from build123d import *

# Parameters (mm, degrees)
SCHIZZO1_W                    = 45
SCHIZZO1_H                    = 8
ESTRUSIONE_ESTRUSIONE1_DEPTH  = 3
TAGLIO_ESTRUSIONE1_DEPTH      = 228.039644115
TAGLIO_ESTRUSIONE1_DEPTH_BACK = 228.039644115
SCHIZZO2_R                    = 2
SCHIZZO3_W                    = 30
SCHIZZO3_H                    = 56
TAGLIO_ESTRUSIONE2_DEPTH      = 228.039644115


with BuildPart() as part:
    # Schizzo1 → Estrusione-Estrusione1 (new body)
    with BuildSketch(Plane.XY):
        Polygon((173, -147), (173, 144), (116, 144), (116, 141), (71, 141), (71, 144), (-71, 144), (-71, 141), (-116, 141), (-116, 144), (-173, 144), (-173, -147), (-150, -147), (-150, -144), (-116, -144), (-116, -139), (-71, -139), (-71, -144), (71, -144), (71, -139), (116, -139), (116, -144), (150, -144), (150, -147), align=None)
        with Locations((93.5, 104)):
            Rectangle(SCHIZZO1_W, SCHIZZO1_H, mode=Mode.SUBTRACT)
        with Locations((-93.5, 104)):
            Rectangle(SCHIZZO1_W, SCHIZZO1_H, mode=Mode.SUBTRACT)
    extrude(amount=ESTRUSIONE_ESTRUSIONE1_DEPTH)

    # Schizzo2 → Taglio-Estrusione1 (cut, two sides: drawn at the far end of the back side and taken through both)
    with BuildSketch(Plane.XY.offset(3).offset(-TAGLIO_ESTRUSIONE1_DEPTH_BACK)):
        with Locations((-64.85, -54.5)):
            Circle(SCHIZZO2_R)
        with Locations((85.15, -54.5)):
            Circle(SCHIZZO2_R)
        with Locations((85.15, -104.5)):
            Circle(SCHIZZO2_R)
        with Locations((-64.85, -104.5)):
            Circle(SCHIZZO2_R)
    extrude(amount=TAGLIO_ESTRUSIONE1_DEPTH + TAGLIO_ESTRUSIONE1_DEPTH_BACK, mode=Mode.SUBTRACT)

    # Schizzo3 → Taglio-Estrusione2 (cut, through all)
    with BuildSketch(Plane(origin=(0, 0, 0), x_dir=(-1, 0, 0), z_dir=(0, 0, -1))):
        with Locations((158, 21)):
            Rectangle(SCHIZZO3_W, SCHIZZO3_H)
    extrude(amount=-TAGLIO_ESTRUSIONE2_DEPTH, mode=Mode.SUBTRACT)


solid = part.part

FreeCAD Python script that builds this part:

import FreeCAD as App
import Part
import Sketcher
from FreeCAD import Vector

doc = App.newDocument("Part")
params = doc.addObject("Spreadsheet::Sheet", "Params")
for row, (alias, value) in enumerate([
    ("sketch1_width", "57 mm"),
    ("sketch1_width2", "45 mm"),
    ("sketch1_width3", "142 mm"),
    ("sketch1_width4", "23 mm"),
    ("sketch1_height", "291 mm"),
    ("pad1_length", "3 mm"),
    ("sketch2_diameter", "4 mm"),
    ("sketch3_width", "30 mm"),
    ("sketch3_height", "56 mm"),
], start=1):
    params.set(f"A{row}", alias)
    params.set(f"B{row}", "=" + value)
    params.setAlias(f"B{row}", alias)

body = doc.addObject("PartDesign::Body", "Body")

# Sketch on XY plane
sketch1 = doc.addObject("Sketcher::SketchObject", "Sketch")
body.addObject(sketch1)
sketch1.AttachmentSupport = (doc.XY_Plane, [""])
sketch1.MapMode = "FlatFace"
sketch1.addGeometry([
    Part.LineSegment(Vector(173, -147, 0), Vector(173, 144, 0)),  # 0
    Part.LineSegment(Vector(173, 144, 0), Vector(116, 144, 0)),  # 1
    Part.LineSegment(Vector(116, 144, 0), Vector(116, 141, 0)),  # 2
    Part.LineSegment(Vector(116, 141, 0), Vector(71, 141, 0)),  # 3
    Part.LineSegment(Vector(71, 141, 0), Vector(71, 144, 0)),  # 4
    Part.LineSegment(Vector(71, 144, 0), Vector(-71, 144, 0)),  # 5
    Part.LineSegment(Vector(-71, 144, 0), Vector(-71, 141, 0)),  # 6
    Part.LineSegment(Vector(-71, 141, 0), Vector(-116, 141, 0)),  # 7
    Part.LineSegment(Vector(-116, 141, 0), Vector(-116, 144, 0)),  # 8
    Part.LineSegment(Vector(-116, 144, 0), Vector(-173, 144, 0)),  # 9
    Part.LineSegment(Vector(-173, 144, 0), Vector(-173, -147, 0)),  # 10
    Part.LineSegment(Vector(-173, -147, 0), Vector(-150, -147, 0)),  # 11
    Part.LineSegment(Vector(-150, -147, 0), Vector(-150, -144, 0)),  # 12
    Part.LineSegment(Vector(-150, -144, 0), Vector(-116, -144, 0)),  # 13
    Part.LineSegment(Vector(-116, -144, 0), Vector(-116, -139, 0)),  # 14
    Part.LineSegment(Vector(-116, -139, 0), Vector(-71, -139, 0)),  # 15
    Part.LineSegment(Vector(-71, -139, 0), Vector(-71, -144, 0)),  # 16
    Part.LineSegment(Vector(-71, -144, 0), Vector(71, -144, 0)),  # 17
    Part.LineSegment(Vector(71, -144, 0), Vector(71, -139, 0)),  # 18
    Part.LineSegment(Vector(71, -139, 0), Vector(116, -139, 0)),  # 19
    Part.LineSegment(Vector(116, -139, 0), Vector(116, -144, 0)),  # 20
    Part.LineSegment(Vector(116, -144, 0), Vector(150, -144, 0)),  # 21
    Part.LineSegment(Vector(150, -144, 0), Vector(150, -147, 0)),  # 22
    Part.LineSegment(Vector(150, -147, 0), Vector(173, -147, 0)),  # 23
    Part.LineSegment(Vector(-71, 100, 0), Vector(-116, 100, 0)),  # 24
    Part.LineSegment(Vector(-116, 100, 0), Vector(-116, 108, 0)),  # 25
    Part.LineSegment(Vector(-116, 108, 0), Vector(-71, 108, 0)),  # 26
    Part.LineSegment(Vector(-71, 108, 0), Vector(-71, 100, 0)),  # 27
    Part.LineSegment(Vector(116, 100, 0), Vector(71, 100, 0)),  # 28
    Part.LineSegment(Vector(71, 100, 0), Vector(71, 108, 0)),  # 29
    Part.LineSegment(Vector(71, 108, 0), Vector(116, 108, 0)),  # 30
    Part.LineSegment(Vector(116, 108, 0), Vector(116, 100, 0)),  # 31
], False)
sketch1.addConstraint([
    Sketcher.Constraint("Coincident", 0, 2, 1, 1),
    Sketcher.Constraint("Coincident", 1, 2, 2, 1),
    Sketcher.Constraint("Coincident", 2, 2, 3, 1),
    Sketcher.Constraint("Coincident", 3, 2, 4, 1),
    Sketcher.Constraint("Coincident", 4, 2, 5, 1),
    Sketcher.Constraint("Coincident", 5, 2, 6, 1),
    Sketcher.Constraint("Coincident", 6, 2, 7, 1),
    Sketcher.Constraint("Coincident", 7, 2, 8, 1),
    Sketcher.Constraint("Coincident", 8, 2, 9, 1),
    Sketcher.Constraint("Coincident", 9, 2, 10, 1),
    Sketcher.Constraint("Coincident", 10, 2, 11, 1),
    Sketcher.Constraint("Coincident", 11, 2, 12, 1),
    Sketcher.Constraint("Coincident", 12, 2, 13, 1),
    Sketcher.Constraint("Coincident", 13, 2, 14, 1),
    Sketcher.Constraint("Coincident", 14, 2, 15, 1),
    Sketcher.Constraint("Coincident", 15, 2, 16, 1),
    Sketcher.Constraint("Coincident", 16, 2, 17, 1),
    Sketcher.Constraint("Coincident", 17, 2, 18, 1),
    Sketcher.Constraint("Coincident", 18, 2, 19, 1),
    Sketcher.Constraint("Coincident", 19, 2, 20, 1),
    Sketcher.Constraint("Coincident", 20, 2, 21, 1),
    Sketcher.Constraint("Coincident", 21, 2, 22, 1),
    Sketcher.Constraint("Coincident", 22, 2, 23, 1),
    Sketcher.Constraint("Coincident", 23, 2, 0, 1),
    Sketcher.Constraint("Coincident", 24, 2, 25, 1),
    Sketcher.Constraint("Coincident", 25, 2, 26, 1),
    Sketcher.Constraint("Coincident", 26, 2, 27, 1),
    Sketcher.Constraint("Coincident", 27, 2, 24, 1),
    Sketcher.Constraint("Coincident", 28, 2, 29, 1),
    Sketcher.Constraint("Coincident", 29, 2, 30, 1),
    Sketcher.Constraint("Coincident", 30, 2, 31, 1),
    Sketcher.Constraint("Coincident", 31, 2, 28, 1),
    Sketcher.Constraint("Vertical", 0),
    Sketcher.Constraint("Horizontal", 1),
    Sketcher.Constraint("Vertical", 2),
    Sketcher.Constraint("Horizontal", 3),
    Sketcher.Constraint("Vertical", 4),
    Sketcher.Constraint("Horizontal", 5),
    Sketcher.Constraint("Vertical", 6),
    Sketcher.Constraint("Horizontal", 7),
    Sketcher.Constraint("Vertical", 8),
    Sketcher.Constraint("Horizontal", 9),
    Sketcher.Constraint("Vertical", 10),
    Sketcher.Constraint("Horizontal", 11),
    Sketcher.Constraint("Vertical", 12),
    Sketcher.Constraint("Horizontal", 13),
    Sketcher.Constraint("Vertical", 14),
    Sketcher.Constraint("Horizontal", 15),
    Sketcher.Constraint("Vertical", 16),
    Sketcher.Constraint("Horizontal", 17),
    Sketcher.Constraint("Vertical", 18),
    Sketcher.Constraint("Horizontal", 19),
    Sketcher.Constraint("Vertical", 20),
    Sketcher.Constraint("Horizontal", 21),
    Sketcher.Constraint("Vertical", 22),
    Sketcher.Constraint("Horizontal", 23),
    Sketcher.Constraint("Horizontal", 24),
    Sketcher.Constraint("Vertical", 25),
    Sketcher.Constraint("Horizontal", 26),
    Sketcher.Constraint("Vertical", 27),
    Sketcher.Constraint("Horizontal", 28),
    Sketcher.Constraint("Vertical", 29),
    Sketcher.Constraint("Horizontal", 30),
    Sketcher.Constraint("Vertical", 31),
    Sketcher.Constraint("Symmetric", 1, 2, 13, 2, -1, 1),
    Sketcher.Constraint("Symmetric", 4, 2, 16, 2, -1, 1),
    Sketcher.Constraint("Symmetric", 8, 2, 20, 2, -1, 1),
    Sketcher.Constraint("Symmetric", 3, 2, 6, 2, -2),
    Sketcher.Constraint("Symmetric", 1, 2, 8, 2, -2),
    Sketcher.Constraint("Symmetric", 15, 2, 18, 2, -2),
    Sketcher.Constraint("Symmetric", 11, 2, 22, 2, -2),
    Sketcher.Constraint("Symmetric", 27, 2, 28, 2, -2),
    Sketcher.Constraint("Symmetric", 25, 2, 30, 2, -2),
    Sketcher.Constraint("Horizontal", 1, 2, 4, 2),
    Sketcher.Constraint("Vertical", 14, 2, 24, 2),
    Sketcher.Constraint("Vertical", 16, 2, 26, 2),
    Sketcher.Constraint("Equal", 1, 9),
    Sketcher.Constraint("Equal", 8, 12),
    Sketcher.Constraint("DistanceX", 1, 2, 1, 1, 57.0),
    Sketcher.Constraint("DistanceX", 3, 2, 3, 1, 45.0),
    Sketcher.Constraint("DistanceX", 5, 2, 5, 1, 142.0),
    Sketcher.Constraint("DistanceX", 11, 1, 11, 2, 23.0),
    Sketcher.Constraint("DistanceY", 0, 1, 0, 2, 291.0),
    Sketcher.Constraint("DistanceY", 2, 2, 2, 1, 3.0),
    Sketcher.Constraint("DistanceY", 14, 1, 14, 2, 5.0),
    Sketcher.Constraint("DistanceY", 25, 1, 25, 2, 8.0),
    Sketcher.Constraint("DistanceY", -1, 1, 24, 2, 100.0),
])
sketch1.setExpression("Constraints[78]", "Params.sketch1_width")
sketch1.setExpression("Constraints[79]", "Params.sketch1_width2")
sketch1.setExpression("Constraints[80]", "Params.sketch1_width3")
sketch1.setExpression("Constraints[81]", "Params.sketch1_width4")
sketch1.setExpression("Constraints[82]", "Params.sketch1_height")
pad1 = doc.addObject("PartDesign::Pad", "Pad")
body.addObject(pad1)
pad1.Profile = sketch1
pad1.setExpression("Length", "Params.pad1_length")

# Sketch on XY plane
sketch2 = doc.addObject("Sketcher::SketchObject", "Sketch001")
body.addObject(sketch2)
sketch2.AttachmentSupport = (doc.XY_Plane, [""])
sketch2.MapMode = "FlatFace"
sketch2.AttachmentOffset = App.Placement(Vector(0, 0, 3), App.Rotation())
sketch2.addGeometry([
    Part.Circle(Vector(-64.8, -54.5, 0), Vector(0, 0, 1), 2),
    Part.Circle(Vector(85.2, -54.5, 0), Vector(0, 0, 1), 2),
    Part.Circle(Vector(85.2, -104.5, 0), Vector(0, 0, 1), 2),
    Part.Circle(Vector(-64.8, -104.5, 0), Vector(0, 0, 1), 2),
], False)
sketch2.addConstraint([
    Sketcher.Constraint("Equal", 0, 1),
    Sketcher.Constraint("Equal", 1, 2),
    Sketcher.Constraint("Equal", 2, 3),
    Sketcher.Constraint("Horizontal", 0, 3, 1, 3),
    Sketcher.Constraint("Horizontal", 2, 3, 3, 3),
    Sketcher.Constraint("Vertical", 1, 3, 2, 3),
    Sketcher.Constraint("Vertical", 0, 3, 3, 3),
    Sketcher.Constraint("Diameter", 0, 4.0),
    Sketcher.Constraint("DistanceX", 0, 3, 1, 3, 150.0),
    Sketcher.Constraint("DistanceY", 2, 3, 1, 3, 50.0),
    Sketcher.Constraint("DistanceY", 0, 3, -1, 1, 54.5),
    Sketcher.Constraint("DistanceX", 0, 3, -1, 1, 64.85),
])
sketch2.setExpression("Constraints[7]", "Params.sketch2_diameter")
pocket1 = doc.addObject("PartDesign::Pocket", "Pocket")
body.addObject(pocket1)
pocket1.Profile = sketch2
pocket1.Type = "ThroughAll"
pocket1.Midplane = True

# Sketch on XY plane
sketch3 = doc.addObject("Sketcher::SketchObject", "Sketch002")
body.addObject(sketch3)
sketch3.AttachmentSupport = (doc.XY_Plane, [""])
sketch3.MapMode = "FlatFace"
sketch3.addGeometry([
    Part.LineSegment(Vector(-143, 49, 0), Vector(-143, -7, 0)),
    Part.LineSegment(Vector(-143, -7, 0), Vector(-173, -7, 0)),
    Part.LineSegment(Vector(-173, -7, 0), Vector(-173, 49, 0)),
    Part.LineSegment(Vector(-173, 49, 0), Vector(-143, 49, 0)),
], False)
sketch3.addConstraint([
    Sketcher.Constraint("Coincident", 0, 2, 1, 1),
    Sketcher.Constraint("Coincident", 1, 2, 2, 1),
    Sketcher.Constraint("Coincident", 2, 2, 3, 1),
    Sketcher.Constraint("Coincident", 3, 2, 0, 1),
    Sketcher.Constraint("Vertical", 0),
    Sketcher.Constraint("Horizontal", 1),
    Sketcher.Constraint("Vertical", 2),
    Sketcher.Constraint("Horizontal", 3),
    Sketcher.Constraint("DistanceX", 1, 2, 1, 1, 30.0),
    Sketcher.Constraint("DistanceY", 0, 2, 0, 1, 56.0),
    Sketcher.Constraint("DistanceX", 0, 2, -1, 1, 143.0),
    Sketcher.Constraint("DistanceY", 0, 2, -1, 1, 7.0),
])
sketch3.setExpression("Constraints[8]", "Params.sketch3_width")
sketch3.setExpression("Constraints[9]", "Params.sketch3_height")
pocket2 = doc.addObject("PartDesign::Pocket", "Pocket001")
body.addObject(pocket2)
pocket2.Profile = sketch3
pocket2.Type = "ThroughAll"
pocket2.Reversed = True

doc.recompute()
